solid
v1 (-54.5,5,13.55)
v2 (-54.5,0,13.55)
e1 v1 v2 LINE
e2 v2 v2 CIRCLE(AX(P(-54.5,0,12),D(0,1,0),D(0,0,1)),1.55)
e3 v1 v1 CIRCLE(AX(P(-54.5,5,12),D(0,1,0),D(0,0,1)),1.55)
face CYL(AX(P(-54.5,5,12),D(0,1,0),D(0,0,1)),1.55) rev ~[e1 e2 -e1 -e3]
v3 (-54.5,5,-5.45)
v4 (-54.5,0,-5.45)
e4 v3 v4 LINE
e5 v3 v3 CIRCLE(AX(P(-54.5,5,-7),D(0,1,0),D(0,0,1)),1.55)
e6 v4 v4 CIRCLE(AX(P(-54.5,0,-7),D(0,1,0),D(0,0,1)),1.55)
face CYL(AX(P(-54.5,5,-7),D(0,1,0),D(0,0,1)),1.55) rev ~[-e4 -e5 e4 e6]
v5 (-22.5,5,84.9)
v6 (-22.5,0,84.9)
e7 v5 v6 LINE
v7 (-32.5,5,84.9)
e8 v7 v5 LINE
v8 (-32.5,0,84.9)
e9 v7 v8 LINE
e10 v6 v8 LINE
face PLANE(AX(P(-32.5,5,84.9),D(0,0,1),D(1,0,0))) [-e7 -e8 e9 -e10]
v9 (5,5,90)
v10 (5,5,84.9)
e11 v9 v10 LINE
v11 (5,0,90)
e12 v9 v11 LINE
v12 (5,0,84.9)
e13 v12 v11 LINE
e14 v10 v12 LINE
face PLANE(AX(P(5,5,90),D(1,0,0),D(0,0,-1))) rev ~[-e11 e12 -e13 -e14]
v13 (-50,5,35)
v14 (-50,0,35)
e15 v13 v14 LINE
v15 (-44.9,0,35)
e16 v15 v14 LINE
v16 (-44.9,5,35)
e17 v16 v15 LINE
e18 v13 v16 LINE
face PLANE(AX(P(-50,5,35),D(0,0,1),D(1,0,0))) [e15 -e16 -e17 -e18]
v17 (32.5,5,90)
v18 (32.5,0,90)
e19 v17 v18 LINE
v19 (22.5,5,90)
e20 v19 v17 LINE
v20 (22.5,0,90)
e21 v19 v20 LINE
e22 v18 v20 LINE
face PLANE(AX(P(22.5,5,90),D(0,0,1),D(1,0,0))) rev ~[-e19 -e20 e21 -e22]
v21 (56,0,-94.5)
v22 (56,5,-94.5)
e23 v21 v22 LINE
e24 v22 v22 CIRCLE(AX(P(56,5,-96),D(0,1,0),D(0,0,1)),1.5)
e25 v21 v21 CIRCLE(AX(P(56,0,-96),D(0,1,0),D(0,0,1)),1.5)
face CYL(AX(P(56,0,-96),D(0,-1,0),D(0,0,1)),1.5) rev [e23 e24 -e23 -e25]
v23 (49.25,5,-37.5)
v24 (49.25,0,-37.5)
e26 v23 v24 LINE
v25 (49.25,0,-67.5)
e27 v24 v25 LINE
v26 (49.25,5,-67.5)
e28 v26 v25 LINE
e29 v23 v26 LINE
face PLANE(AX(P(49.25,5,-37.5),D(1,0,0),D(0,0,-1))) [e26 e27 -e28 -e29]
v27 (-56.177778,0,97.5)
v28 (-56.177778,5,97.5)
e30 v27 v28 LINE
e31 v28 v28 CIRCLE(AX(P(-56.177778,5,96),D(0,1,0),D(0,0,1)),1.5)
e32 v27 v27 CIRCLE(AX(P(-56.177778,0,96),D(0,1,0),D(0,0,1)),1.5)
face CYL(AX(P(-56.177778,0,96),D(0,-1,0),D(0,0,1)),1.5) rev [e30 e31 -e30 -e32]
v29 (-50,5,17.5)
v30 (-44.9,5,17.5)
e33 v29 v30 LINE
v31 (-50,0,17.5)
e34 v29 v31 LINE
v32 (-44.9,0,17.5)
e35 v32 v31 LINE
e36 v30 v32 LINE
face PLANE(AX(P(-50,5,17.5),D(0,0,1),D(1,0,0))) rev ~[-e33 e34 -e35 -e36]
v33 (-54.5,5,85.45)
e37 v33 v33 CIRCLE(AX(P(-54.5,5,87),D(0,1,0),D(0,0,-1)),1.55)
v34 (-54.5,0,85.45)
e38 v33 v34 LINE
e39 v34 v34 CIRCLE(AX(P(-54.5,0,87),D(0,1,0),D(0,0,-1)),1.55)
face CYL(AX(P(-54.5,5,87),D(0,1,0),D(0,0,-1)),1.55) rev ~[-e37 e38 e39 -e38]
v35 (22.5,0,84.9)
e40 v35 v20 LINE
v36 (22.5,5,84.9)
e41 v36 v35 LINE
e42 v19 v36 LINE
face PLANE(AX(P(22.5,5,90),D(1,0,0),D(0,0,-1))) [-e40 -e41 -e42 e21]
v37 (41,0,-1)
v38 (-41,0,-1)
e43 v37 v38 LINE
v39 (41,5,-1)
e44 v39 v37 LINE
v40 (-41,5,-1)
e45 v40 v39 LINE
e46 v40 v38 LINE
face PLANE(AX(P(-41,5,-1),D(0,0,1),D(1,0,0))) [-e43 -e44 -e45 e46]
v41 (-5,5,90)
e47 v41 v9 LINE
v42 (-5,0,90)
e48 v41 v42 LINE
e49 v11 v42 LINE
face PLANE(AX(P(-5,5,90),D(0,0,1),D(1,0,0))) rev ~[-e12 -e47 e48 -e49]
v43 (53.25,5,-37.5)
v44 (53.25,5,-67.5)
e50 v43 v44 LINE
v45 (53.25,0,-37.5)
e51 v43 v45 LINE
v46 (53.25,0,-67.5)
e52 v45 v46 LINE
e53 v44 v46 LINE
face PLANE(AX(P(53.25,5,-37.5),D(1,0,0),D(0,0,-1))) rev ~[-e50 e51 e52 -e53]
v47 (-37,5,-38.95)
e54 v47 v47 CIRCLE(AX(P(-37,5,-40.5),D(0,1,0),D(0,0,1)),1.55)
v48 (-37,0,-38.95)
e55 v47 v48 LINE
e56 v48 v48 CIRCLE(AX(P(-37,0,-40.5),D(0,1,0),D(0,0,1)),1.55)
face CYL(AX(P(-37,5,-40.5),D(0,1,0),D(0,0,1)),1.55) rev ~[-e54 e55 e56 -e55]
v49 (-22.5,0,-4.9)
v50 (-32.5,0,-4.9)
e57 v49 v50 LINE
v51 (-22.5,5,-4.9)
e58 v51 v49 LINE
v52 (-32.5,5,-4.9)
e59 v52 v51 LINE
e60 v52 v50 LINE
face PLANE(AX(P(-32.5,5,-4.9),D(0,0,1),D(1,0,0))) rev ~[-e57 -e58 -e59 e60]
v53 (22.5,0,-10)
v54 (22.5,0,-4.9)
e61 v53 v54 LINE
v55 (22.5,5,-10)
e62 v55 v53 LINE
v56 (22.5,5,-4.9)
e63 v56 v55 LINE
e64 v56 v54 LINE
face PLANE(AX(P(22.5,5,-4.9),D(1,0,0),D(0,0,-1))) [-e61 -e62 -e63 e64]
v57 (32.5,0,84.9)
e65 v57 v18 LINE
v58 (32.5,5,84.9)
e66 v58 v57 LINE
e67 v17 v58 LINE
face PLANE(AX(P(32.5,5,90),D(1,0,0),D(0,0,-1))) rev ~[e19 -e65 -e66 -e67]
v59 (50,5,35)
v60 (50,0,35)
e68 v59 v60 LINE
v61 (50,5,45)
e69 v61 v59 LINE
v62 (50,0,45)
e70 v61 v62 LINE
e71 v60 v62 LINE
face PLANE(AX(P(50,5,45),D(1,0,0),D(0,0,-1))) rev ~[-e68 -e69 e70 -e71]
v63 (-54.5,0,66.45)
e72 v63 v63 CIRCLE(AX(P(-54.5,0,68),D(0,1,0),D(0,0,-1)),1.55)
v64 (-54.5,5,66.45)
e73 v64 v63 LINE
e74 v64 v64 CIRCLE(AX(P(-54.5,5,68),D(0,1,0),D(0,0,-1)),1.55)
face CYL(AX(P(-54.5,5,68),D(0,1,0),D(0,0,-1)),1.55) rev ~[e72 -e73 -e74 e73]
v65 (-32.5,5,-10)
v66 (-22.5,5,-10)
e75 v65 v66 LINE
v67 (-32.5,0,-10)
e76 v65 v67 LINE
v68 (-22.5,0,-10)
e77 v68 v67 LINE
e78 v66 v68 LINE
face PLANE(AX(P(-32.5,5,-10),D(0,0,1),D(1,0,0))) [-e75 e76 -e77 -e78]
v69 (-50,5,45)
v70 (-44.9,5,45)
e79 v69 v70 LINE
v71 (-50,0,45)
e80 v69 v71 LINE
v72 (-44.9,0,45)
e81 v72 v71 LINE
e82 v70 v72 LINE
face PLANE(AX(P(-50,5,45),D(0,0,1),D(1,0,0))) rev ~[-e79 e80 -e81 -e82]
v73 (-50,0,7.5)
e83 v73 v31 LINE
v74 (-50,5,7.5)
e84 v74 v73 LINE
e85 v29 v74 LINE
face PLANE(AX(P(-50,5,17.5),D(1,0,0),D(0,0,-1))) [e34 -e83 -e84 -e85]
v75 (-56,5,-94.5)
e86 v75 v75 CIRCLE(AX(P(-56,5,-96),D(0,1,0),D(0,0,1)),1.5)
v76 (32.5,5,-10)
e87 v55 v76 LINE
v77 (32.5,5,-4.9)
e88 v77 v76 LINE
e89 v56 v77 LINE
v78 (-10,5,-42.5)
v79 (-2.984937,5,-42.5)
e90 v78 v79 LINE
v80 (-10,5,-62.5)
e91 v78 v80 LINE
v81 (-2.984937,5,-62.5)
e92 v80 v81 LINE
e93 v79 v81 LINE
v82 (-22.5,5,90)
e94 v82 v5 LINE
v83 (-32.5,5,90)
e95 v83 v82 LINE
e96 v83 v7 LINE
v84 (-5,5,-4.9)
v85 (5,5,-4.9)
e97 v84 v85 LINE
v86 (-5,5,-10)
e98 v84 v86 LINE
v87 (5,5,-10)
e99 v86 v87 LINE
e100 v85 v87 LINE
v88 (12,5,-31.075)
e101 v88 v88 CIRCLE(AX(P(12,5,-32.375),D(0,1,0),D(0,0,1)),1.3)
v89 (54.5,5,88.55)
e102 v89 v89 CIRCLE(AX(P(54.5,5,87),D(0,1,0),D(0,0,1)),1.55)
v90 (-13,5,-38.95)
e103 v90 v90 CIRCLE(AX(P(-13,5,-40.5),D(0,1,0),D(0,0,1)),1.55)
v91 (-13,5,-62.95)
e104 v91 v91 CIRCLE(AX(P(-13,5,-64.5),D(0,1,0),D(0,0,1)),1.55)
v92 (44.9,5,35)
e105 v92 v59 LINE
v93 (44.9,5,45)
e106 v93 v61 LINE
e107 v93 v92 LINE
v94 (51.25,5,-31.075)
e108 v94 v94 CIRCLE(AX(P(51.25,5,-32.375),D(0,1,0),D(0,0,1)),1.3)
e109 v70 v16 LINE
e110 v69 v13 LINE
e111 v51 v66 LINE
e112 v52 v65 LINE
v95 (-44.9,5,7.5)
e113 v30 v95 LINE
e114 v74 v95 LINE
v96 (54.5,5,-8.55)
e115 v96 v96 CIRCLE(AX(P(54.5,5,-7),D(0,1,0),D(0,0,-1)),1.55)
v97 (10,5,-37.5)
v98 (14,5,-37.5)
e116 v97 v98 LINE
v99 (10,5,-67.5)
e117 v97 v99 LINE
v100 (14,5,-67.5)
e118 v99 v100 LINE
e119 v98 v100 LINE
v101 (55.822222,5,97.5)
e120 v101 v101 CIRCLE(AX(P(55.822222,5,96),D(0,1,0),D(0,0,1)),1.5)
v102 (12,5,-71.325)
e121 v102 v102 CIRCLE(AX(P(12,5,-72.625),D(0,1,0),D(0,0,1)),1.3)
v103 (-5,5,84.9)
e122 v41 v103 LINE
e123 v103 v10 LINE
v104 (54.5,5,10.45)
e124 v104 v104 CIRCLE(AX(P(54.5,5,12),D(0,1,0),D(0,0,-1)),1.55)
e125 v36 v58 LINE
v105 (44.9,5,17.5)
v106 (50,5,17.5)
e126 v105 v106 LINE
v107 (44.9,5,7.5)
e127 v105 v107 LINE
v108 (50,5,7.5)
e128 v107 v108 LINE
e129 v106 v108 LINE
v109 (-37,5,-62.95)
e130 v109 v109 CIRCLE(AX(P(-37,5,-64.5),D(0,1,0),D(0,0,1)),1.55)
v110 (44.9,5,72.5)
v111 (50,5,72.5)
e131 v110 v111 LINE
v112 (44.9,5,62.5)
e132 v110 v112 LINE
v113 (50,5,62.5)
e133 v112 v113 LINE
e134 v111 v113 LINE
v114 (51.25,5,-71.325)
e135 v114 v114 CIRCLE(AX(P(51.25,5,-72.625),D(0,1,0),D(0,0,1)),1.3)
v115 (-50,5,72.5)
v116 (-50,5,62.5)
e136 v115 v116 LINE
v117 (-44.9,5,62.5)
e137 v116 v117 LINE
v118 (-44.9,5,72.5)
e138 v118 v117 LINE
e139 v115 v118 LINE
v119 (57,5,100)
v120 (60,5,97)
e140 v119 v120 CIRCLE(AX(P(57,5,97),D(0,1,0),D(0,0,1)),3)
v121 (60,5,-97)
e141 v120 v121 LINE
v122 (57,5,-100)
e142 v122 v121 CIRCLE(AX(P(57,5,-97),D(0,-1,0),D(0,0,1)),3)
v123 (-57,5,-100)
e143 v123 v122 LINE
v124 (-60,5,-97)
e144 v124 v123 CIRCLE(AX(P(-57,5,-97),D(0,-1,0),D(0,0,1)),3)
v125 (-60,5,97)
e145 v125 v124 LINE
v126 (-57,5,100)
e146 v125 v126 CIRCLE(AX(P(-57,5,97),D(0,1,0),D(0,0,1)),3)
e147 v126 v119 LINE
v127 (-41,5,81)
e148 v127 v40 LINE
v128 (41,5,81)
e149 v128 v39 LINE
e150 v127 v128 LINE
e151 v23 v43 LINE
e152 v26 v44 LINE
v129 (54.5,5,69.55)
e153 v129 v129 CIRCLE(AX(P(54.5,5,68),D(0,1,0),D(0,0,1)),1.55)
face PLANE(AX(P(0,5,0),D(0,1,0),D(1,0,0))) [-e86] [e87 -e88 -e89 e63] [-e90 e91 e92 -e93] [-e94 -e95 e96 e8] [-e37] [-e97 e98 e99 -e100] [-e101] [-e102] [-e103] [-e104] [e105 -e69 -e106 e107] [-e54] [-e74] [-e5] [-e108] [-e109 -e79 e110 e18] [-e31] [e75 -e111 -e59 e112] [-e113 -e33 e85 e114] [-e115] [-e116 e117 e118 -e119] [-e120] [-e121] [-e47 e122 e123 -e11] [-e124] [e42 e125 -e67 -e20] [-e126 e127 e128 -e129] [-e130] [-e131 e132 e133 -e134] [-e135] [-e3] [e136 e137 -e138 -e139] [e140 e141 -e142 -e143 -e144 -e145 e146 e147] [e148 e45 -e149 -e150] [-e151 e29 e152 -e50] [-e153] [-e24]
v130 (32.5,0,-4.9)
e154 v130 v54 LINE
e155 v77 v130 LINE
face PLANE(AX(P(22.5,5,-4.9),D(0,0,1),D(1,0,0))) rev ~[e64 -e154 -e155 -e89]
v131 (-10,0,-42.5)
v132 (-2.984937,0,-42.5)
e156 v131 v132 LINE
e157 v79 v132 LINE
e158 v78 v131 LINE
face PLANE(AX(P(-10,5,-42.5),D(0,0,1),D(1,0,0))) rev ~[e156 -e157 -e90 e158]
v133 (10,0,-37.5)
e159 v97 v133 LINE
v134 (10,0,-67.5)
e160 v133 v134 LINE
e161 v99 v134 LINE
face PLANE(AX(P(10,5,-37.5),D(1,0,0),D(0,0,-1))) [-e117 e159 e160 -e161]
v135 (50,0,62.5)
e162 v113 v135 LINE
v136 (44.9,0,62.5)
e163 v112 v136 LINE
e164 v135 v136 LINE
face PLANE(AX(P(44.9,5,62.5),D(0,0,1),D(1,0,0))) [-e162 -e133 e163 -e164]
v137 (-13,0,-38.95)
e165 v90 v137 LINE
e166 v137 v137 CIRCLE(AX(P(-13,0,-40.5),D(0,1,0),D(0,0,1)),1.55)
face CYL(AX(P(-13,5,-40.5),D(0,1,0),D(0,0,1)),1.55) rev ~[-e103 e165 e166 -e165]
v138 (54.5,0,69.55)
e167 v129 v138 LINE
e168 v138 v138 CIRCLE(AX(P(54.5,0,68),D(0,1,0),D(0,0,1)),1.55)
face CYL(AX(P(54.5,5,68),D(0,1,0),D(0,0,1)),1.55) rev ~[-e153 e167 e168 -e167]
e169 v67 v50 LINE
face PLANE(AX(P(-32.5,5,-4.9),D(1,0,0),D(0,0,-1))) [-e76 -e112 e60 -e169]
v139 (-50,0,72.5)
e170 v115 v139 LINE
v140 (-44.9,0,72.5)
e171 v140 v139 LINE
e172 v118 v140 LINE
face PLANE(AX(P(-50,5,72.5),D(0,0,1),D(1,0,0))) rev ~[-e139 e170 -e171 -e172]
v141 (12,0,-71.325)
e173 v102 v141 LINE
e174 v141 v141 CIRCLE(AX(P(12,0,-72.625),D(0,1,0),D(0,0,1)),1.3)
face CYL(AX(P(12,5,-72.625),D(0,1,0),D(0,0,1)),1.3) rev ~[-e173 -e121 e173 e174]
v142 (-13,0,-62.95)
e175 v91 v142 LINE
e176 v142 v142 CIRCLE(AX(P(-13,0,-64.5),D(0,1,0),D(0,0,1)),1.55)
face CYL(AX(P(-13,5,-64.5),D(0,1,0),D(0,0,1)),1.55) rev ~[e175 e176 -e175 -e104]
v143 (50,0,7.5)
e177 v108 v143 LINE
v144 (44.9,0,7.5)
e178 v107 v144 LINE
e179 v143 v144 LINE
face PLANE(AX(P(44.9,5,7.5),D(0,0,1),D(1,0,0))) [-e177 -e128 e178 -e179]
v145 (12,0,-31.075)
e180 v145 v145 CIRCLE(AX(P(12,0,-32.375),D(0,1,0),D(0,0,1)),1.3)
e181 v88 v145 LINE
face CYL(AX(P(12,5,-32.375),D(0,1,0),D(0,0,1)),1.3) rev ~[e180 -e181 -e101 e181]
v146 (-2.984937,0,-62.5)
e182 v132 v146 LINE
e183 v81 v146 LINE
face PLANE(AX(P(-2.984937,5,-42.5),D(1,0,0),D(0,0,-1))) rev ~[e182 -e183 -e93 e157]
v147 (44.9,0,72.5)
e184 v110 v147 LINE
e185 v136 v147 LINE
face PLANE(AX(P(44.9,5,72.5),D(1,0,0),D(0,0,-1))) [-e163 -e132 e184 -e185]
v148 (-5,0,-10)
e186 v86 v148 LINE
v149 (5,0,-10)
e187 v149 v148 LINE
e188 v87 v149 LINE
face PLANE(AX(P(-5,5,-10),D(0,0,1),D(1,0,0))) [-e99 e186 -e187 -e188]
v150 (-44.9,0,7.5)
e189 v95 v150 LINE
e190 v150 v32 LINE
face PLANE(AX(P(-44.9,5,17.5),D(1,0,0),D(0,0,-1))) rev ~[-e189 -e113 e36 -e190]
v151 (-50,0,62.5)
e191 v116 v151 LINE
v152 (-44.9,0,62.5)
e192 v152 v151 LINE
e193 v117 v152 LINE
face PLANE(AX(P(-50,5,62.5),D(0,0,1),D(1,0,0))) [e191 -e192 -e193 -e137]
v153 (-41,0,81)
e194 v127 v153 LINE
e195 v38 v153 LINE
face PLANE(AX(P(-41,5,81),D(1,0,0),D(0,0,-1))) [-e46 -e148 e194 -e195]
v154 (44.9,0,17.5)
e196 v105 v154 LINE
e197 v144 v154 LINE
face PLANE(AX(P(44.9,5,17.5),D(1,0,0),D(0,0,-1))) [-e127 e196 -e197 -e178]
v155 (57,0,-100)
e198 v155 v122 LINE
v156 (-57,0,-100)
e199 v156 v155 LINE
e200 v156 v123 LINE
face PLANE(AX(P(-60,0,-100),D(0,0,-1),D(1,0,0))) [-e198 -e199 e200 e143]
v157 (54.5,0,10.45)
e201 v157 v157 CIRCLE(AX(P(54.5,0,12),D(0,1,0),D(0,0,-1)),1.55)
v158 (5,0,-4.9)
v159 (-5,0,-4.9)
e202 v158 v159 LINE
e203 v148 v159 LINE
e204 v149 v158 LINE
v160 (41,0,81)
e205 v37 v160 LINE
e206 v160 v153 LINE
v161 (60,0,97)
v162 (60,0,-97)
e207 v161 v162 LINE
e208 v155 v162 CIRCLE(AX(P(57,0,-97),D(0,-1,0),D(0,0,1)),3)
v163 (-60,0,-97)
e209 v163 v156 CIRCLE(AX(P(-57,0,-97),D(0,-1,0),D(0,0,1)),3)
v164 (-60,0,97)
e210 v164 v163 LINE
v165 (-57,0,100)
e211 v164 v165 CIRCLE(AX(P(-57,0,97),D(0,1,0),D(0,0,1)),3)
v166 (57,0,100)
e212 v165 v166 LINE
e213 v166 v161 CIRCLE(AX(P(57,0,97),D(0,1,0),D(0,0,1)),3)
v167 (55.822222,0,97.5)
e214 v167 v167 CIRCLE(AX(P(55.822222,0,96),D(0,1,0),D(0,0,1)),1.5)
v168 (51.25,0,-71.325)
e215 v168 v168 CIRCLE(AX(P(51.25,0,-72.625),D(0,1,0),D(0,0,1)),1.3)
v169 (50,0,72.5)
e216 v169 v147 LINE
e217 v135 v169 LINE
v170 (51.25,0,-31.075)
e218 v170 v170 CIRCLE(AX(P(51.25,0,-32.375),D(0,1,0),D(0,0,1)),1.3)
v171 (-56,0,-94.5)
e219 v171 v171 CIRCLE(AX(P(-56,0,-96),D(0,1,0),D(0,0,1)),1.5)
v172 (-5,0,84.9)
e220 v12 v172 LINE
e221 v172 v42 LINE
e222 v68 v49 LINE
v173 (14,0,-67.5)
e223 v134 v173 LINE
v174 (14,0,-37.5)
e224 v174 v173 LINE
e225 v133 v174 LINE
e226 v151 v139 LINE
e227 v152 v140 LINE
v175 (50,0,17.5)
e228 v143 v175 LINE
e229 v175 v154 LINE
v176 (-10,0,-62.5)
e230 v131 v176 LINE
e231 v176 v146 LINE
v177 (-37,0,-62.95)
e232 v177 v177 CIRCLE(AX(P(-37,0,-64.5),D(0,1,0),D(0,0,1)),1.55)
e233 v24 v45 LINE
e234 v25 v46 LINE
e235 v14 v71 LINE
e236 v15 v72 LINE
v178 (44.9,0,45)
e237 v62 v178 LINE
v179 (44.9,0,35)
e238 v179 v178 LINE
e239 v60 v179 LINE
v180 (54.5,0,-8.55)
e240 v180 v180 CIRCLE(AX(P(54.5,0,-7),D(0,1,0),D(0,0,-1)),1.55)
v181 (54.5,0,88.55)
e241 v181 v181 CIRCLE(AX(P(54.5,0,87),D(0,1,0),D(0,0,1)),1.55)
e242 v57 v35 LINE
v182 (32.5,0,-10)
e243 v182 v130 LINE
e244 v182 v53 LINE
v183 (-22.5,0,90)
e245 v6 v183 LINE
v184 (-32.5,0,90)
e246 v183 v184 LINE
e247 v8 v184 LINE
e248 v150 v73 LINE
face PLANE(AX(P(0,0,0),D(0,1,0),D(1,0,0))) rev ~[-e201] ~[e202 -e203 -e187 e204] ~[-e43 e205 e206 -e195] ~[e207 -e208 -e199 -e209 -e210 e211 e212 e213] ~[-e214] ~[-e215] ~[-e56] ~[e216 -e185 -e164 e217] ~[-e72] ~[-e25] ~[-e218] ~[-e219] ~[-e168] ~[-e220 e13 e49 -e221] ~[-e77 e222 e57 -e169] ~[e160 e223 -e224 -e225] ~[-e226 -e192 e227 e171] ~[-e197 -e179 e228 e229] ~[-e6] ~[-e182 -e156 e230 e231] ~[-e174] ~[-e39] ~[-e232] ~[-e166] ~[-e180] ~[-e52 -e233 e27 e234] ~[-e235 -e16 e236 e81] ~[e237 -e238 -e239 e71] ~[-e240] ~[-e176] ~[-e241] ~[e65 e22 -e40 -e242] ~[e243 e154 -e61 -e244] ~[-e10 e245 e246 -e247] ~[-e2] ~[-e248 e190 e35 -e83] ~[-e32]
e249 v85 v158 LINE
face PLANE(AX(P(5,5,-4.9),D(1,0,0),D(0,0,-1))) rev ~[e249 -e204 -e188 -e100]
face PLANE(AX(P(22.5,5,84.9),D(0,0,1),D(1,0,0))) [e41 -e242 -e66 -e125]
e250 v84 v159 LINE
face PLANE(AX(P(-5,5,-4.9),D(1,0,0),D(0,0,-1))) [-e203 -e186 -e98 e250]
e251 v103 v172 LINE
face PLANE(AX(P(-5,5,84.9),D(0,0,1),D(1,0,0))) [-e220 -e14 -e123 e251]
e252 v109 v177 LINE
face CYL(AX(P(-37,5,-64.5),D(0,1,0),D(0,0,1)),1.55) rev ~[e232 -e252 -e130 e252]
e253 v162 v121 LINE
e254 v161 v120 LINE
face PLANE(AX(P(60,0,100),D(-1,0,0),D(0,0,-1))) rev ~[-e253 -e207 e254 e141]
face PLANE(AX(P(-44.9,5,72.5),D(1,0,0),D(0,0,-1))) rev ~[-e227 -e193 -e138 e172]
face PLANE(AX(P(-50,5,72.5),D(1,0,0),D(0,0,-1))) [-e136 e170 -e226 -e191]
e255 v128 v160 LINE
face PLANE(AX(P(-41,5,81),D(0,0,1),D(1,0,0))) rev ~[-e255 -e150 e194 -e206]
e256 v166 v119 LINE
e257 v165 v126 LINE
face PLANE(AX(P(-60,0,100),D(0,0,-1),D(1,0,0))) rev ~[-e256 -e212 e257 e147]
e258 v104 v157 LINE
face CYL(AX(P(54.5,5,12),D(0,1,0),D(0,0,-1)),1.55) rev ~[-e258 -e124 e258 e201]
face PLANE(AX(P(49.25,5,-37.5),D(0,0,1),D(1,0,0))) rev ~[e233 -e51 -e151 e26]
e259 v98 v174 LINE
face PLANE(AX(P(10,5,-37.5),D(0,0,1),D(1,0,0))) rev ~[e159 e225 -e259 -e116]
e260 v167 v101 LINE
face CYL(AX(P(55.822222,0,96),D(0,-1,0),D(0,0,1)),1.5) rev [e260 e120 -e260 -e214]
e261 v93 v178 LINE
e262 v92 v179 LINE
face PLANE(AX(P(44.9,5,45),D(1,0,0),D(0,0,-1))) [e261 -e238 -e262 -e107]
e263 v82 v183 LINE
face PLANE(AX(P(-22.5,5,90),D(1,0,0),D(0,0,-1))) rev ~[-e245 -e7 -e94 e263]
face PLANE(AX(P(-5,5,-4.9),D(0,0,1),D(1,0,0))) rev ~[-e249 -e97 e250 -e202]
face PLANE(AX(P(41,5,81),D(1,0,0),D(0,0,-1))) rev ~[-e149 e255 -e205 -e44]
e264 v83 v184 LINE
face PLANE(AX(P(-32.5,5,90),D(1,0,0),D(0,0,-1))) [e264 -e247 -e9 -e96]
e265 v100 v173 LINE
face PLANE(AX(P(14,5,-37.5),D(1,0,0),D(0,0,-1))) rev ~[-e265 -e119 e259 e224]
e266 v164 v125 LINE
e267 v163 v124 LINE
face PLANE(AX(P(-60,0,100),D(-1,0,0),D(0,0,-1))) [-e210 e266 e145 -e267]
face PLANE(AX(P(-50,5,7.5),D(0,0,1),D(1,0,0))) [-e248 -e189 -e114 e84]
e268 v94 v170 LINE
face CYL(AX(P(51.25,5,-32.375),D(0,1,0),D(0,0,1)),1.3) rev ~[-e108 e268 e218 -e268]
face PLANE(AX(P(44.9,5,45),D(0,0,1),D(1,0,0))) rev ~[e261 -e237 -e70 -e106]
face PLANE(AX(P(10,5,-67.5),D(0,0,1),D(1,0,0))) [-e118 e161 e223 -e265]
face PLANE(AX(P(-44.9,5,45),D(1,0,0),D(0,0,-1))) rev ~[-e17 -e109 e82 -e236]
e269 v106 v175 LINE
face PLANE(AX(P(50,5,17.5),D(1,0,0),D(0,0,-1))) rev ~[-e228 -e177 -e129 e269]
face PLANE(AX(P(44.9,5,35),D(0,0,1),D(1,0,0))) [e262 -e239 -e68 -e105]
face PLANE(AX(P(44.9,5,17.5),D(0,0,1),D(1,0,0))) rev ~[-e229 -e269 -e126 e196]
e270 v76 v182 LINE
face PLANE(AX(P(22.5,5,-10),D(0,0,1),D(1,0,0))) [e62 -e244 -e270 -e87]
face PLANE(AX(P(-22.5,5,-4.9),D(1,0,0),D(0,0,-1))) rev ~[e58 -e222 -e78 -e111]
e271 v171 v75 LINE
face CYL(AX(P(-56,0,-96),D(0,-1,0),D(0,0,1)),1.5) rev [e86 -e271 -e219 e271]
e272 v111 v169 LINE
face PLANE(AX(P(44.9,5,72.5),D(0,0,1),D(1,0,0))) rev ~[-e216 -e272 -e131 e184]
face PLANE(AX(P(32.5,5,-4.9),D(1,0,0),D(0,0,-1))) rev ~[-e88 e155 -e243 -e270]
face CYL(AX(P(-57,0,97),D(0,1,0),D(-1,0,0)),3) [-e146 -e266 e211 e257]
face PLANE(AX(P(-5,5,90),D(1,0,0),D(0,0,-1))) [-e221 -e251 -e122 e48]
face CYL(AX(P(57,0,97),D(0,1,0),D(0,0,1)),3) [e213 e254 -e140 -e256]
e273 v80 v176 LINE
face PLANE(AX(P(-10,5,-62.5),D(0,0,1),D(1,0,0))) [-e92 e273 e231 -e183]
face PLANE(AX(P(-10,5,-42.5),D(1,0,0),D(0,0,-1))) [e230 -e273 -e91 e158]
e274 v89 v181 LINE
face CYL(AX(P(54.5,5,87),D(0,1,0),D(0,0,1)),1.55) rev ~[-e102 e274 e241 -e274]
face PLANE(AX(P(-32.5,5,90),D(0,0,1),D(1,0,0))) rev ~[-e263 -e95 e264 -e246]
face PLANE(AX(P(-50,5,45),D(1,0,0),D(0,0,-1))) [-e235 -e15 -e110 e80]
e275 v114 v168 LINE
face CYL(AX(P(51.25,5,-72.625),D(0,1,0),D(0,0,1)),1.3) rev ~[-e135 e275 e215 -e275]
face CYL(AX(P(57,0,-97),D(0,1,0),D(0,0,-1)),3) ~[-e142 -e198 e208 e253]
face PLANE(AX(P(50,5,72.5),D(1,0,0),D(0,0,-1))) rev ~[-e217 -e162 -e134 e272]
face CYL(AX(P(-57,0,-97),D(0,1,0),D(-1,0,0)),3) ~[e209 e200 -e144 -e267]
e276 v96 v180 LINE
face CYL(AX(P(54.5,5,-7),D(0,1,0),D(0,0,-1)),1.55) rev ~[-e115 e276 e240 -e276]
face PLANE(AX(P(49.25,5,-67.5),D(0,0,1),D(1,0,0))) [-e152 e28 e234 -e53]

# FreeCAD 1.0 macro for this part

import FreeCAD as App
import Part
import Sketcher

V = App.Vector
Q = App.Units.Quantity


def edges_at(feature, points):
    """Names of the edges that pass closest to the given points."""
    edges = feature.Shape.Edges
    near = lambda p: min(range(len(edges)), key=lambda i: edges[i].distToShape(Part.Vertex(*p))[0])
    return sorted({f"Edge{near(p) + 1}" for p in points})

doc = App.newDocument("Part")
params = doc.addObject("Spreadsheet::Sheet", "Params")
for row, (alias, value) in enumerate([
    ("sketch1_diameter", "3 mm"),
    ("sketch1_width", "120 mm"),
    ("sketch1_height", "200 mm"),
    ("pad1_length", "5 mm"),
    ("sketch2_height", "10 mm"),
    ("sketch2_width", "5.1 mm"),
    ("sketch3_height", "10 mm"),
    ("sketch3_width", "5.1 mm"),
    ("sketch4_height", "10 mm"),
    ("sketch4_width", "5.1 mm"),
    ("sketch5_width", "10 mm"),
    ("sketch5_height", "5.1 mm"),
    ("sketch6_width", "10 mm"),
    ("sketch6_height", "5.1 mm"),
    ("sketch7_width", "10 mm"),
    ("sketch7_height", "5.1 mm"),
    ("sketch8_height", "10 mm"),
    ("sketch8_width", "5.1 mm"),
    ("sketch9_height", "10 mm"),
    ("sketch9_width", "5.1 mm"),
    ("sketch10_height", "10 mm"),
    ("sketch10_width", "5.1 mm"),
    ("sketch11_width", "10 mm"),
    ("sketch11_height", "5.1 mm"),
    ("sketch12_width", "10 mm"),
    ("sketch12_height", "5.1 mm"),
    ("sketch13_width", "10 mm"),
    ("sketch13_height", "5.1 mm"),
    ("sketch14_width", "82 mm"),
    ("sketch15_diameter", "3.1 mm"),
    ("sketch15_height", "20 mm"),
    ("sketch16_diameter", "2.6 mm"),
    ("sketch16_width", "4 mm"),
    ("sketch16_height", "30 mm"),
    ("pocket15_length", "10 mm"),
    ("sketch17_diameter", "3.1 mm"),
    ("fillet_radius", "3 mm"),
], start=1):
    params.set(f"A{row}", alias)
    params.set(f"B{row}", "=" + value)
    params.setAlias(f"B{row}", alias)

body = doc.addObject("PartDesign::Body", "Body")

# Sketch on XZ plane
sketch1 = body.newObject("Sketcher::SketchObject", "Sketch")
sketch1.AttachmentSupport = (doc.getObject("XZ_Plane"), [""])
sketch1.MapMode = "FlatFace"
sketch1.addGeometry([
    Part.LineSegment(V(-60, -100, 0), V(-60, 100, 0)),  # 0
    Part.LineSegment(V(-60, 100, 0), V(60, 100, 0)),  # 1
    Part.LineSegment(V(60, 100, 0), V(60, -100, 0)),  # 2
    Part.LineSegment(V(60, -100, 0), V(-60, -100, 0)),  # 3
    Part.Circle(V(-56.2, 96, 0), V(0, 0, 1), 1.5),  # 4
    Part.Circle(V(55.8, 96, 0), V(0, 0, 1), 1.5),  # 5
    Part.Circle(V(-56, -96, 0), V(0, 0, 1), 1.5),  # 6
    Part.Circle(V(56, -96, 0), V(0, 0, 1), 1.5),  # 7
], False)
sketch1.addConstraint([
    Sketcher.Constraint("Coincident", 0, 2, 1, 1),
    Sketcher.Constraint("Coincident", 1, 2, 2, 1),
    Sketcher.Constraint("Coincident", 2, 2, 3, 1),
    Sketcher.Constraint("Coincident", 3, 2, 0, 1),
    Sketcher.Constraint("Vertical", 0),
    Sketcher.Constraint("Horizontal", 1),
    Sketcher.Constraint("Vertical", 2),
    Sketcher.Constraint("Horizontal", 3),
    Sketcher.Constraint("Equal", 4, 5),
    Sketcher.Constraint("Equal", 5, 6),
    Sketcher.Constraint("Equal", 6, 7),
    Sketcher.Constraint("Symmetric", 0, 2, 2, 2, -1, 1),
    Sketcher.Constraint("Symmetric", 6, 3, 7, 3, -2),
    Sketcher.Constraint("Horizontal", 4, 3, 5, 3),
    Sketcher.Constraint("Diameter", 4, Q("3 mm")),
    Sketcher.Constraint("DistanceX", 1, 1, 1, 2, Q("120 mm")),
    Sketcher.Constraint("DistanceY", 0, 1, 0, 2, Q("200 mm")),
    Sketcher.Constraint("DistanceY", -1, 1, 4, 3, Q("96 mm")),
    Sketcher.Constraint("DistanceX", 6, 3, -1, 1, Q("56 mm")),
    Sketcher.Constraint("DistanceY", 6, 3, -1, 1, Q("96 mm")),
    Sketcher.Constraint("DistanceX", 4, 3, 5, 3, Q("112 mm")),
    Sketcher.Constraint("DistanceX", 4, 3, -1, 1, Q("56.177778 mm")),
])
sketch1.setExpression("Constraints[14]", "Params.sketch1_diameter")
sketch1.setExpression("Constraints[15]", "Params.sketch1_width")
sketch1.setExpression("Constraints[16]", "Params.sketch1_height")
pad1 = body.newObject("PartDesign::Pad", "Pad")
pad1.Profile = sketch1
pad1.setExpression("Length", "Params.pad1_length")
pad1.Reversed = True

# Sketch on XZ plane
sketch2 = body.newObject("Sketcher::SketchObject", "Sketch001")
sketch2.AttachmentSupport = (doc.getObject("XZ_Plane"), [""])
sketch2.MapMode = "FlatFace"
sketch2.AttachmentOffset = App.Placement(V(0, 0, -5), App.Rotation())
sketch2.addGeometry([
    Part.LineSegment(V(-50, 8, 0), V(-50, 18, 0)),
    Part.LineSegment(V(-50, 18, 0), V(-45, 18, 0)),
    Part.LineSegment(V(-45, 18, 0), V(-45, 8, 0)),
    Part.LineSegment(V(-45, 8, 0), V(-50, 8, 0)),
], False)
sketch2.addConstraint([
    Sketcher.Constraint("Coincident", 0, 2, 1, 1),
    Sketcher.Constraint("Coincident", 1, 2, 2, 1),
    Sketcher.Constraint("Coincident", 2, 2, 3, 1),
    Sketcher.Constraint("Coincident", 3, 2, 0, 1),
    Sketcher.Constraint("Vertical", 0),
    Sketcher.Constraint("Horizontal", 1),
    Sketcher.Constraint("Vertical", 2),
    Sketcher.Constraint("Horizontal", 3),
    Sketcher.Constraint("DistanceY", 0, 1, 0, 2, Q("10 mm")),
    Sketcher.Constraint("DistanceX", 1, 1, 1, 2, Q("5.1 mm")),
    Sketcher.Constraint("DistanceX", 0, 2, -1, 1, Q("50 mm")),
    Sketcher.Constraint("DistanceY", -1, 1, 0, 2, Q("17.5 mm")),
])
sketch2.setExpression("Constraints[8]", "Params.sketch2_height")
sketch2.setExpression("Constraints[9]", "Params.sketch2_width")
pocket1 = body.newObject("PartDesign::Pocket", "Pocket")
pocket1.Profile = sketch2
pocket1.Type = "UpToFirst"
pocket1.Reversed = True

# Sketch on XZ plane
sketch3 = body.newObject("Sketcher::SketchObject", "Sketch002")
sketch3.AttachmentSupport = (doc.getObject("XZ_Plane"), [""])
sketch3.MapMode = "FlatFace"
sketch3.AttachmentOffset = App.Placement(V(0, 0, -5), App.Rotation())
sketch3.addGeometry([
    Part.LineSegment(V(-50, 62, 0), V(-50, 72, 0)),
    Part.LineSegment(V(-50, 72, 0), V(-45, 72, 0)),
    Part.LineSegment(V(-45, 72, 0), V(-45, 62, 0)),
    Part.LineSegment(V(-45, 62, 0), V(-50, 62, 0)),
], False)
sketch3.addConstraint([
    Sketcher.Constraint("Coincident", 0, 2, 1, 1),
    Sketcher.Constraint("Coincident", 1, 2, 2, 1),
    Sketcher.Constraint("Coincident", 2, 2, 3, 1),
    Sketcher.Constraint("Coincident", 3, 2, 0, 1),
    Sketcher.Constraint("Vertical", 0),
    Sketcher.Constraint("Horizontal", 1),
    Sketcher.Constraint("Vertical", 2),
    Sketcher.Constraint("Horizontal", 3),
    Sketcher.Constraint("DistanceY", 0, 1, 0, 2, Q("10 mm")),
    Sketcher.Constraint("DistanceX", 1, 1, 1, 2, Q("5.1 mm")),
    Sketcher.Constraint("DistanceX", 0, 2, -1, 1, Q("50 mm")),
    Sketcher.Constraint("DistanceY", -1, 1, 0, 2, Q("72.5 mm")),
])
sketch3.setExpression("Constraints[8]", "Params.sketch3_height")
sketch3.setExpression("Constraints[9]", "Params.sketch3_width")
pocket2 = body.newObject("PartDesign::Pocket", "Pocket001")
pocket2.Profile = sketch3
pocket2.Type = "UpToFirst"
pocket2.Reversed = True

# Sketch on XZ plane
sketch4 = body.newObject("Sketcher::SketchObject", "Sketch003")
sketch4.AttachmentSupport = (doc.getObject("XZ_Plane"), [""])
sketch4.MapMode = "FlatFace"
sketch4.AttachmentOffset = App.Placement(V(0, 0, -5), App.Rotation())
sketch4.addGeometry([
    Part.LineSegment(V(-50, 35, 0), V(-50, 45, 0)),
    Part.LineSegment(V(-50, 45, 0), V(-45, 45, 0)),
    Part.LineSegment(V(-45, 45, 0), V(-45, 35, 0)),
    Part.LineSegment(V(-45, 35, 0), V(-50, 35, 0)),
], False)
sketch4.addConstraint([
    Sketcher.Constraint("Coincident", 0, 2, 1, 1),
    Sketcher.Constraint("Coincident", 1, 2, 2, 1),
    Sketcher.Constraint("Coincident", 2, 2, 3, 1),
    Sketcher.Constraint("Coincident", 3, 2, 0, 1),
    Sketcher.Constraint("Vertical", 0),
    Sketcher.Constraint("Horizontal", 1),
    Sketcher.Constraint("Vertical", 2),
    Sketcher.Constraint("Horizontal", 3),
    Sketcher.Constraint("DistanceY", 0, 1, 0, 2, Q("10 mm")),
    Sketcher.Constraint("DistanceX", 1, 1, 1, 2, Q("5.1 mm")),
    Sketcher.Constraint("DistanceX", 0, 2, -1, 1, Q("50 mm")),
    Sketcher.Constraint("DistanceY", -1, 1, 0, 2, Q("45 mm")),
])
sketch4.setExpression("Constraints[8]", "Params.sketch4_height")
sketch4.setExpression("Constraints[9]", "Params.sketch4_width")
pocket3 = body.newObject("PartDesign::Pocket", "Pocket002")
pocket3.Profile = sketch4
pocket3.Type = "UpToFirst"
pocket3.Reversed = True

# Sketch on XZ plane
sketch5 = body.newObject("Sketcher::SketchObject", "Sketch004")
sketch5.AttachmentSupport = (doc.getObject("XZ_Plane"), [""])
sketch5.MapMode = "FlatFace"
sketch5.AttachmentOffset = App.Placement(V(0, 0, -5), App.Rotation())
sketch5.addGeometry([
    Part.LineSegment(V(-32, -10, 0), V(-32, -5, 0)),
    Part.LineSegment(V(-32, -5, 0), V(-22, -5, 0)),
    Part.LineSegment(V(-22, -5, 0), V(-22, -10, 0)),
    Part.LineSegment(V(-22, -10, 0), V(-32, -10, 0)),
], False)
sketch5.addConstraint([
    Sketcher.Constraint("Coincident", 0, 2, 1, 1),
    Sketcher.Constraint("Coincident", 1, 2, 2, 1),
    Sketcher.Constraint("Coincident", 2, 2, 3, 1),
    Sketcher.Constraint("Coincident", 3, 2, 0, 1),
    Sketcher.Constraint("Vertical", 0),
    Sketcher.Constraint("Horizontal", 1),
    Sketcher.Constraint("Vertical", 2),
    Sketcher.Constraint("Horizontal", 3),
    Sketcher.Constraint("DistanceX", 1, 1, 1, 2, Q("10 mm")),
    Sketcher.Constraint("DistanceY", 0, 1, 0, 2, Q("5.1 mm")),
    Sketcher.Constraint("DistanceY", 2, 2, -1, 1, Q("10 mm")),
    Sketcher.Constraint("DistanceX", 0, 2, -1, 1, Q("32.5 mm")),
])
sketch5.setExpression("Constraints[8]", "Params.sketch5_width")
sketch5.setExpression("Constraints[9]", "Params.sketch5_height")
pocket4 = body.newObject("PartDesign::Pocket", "Pocket003")
pocket4.Profile = sketch5
pocket4.Type = "UpToFirst"
pocket4.Reversed = True

# Sketch on XZ plane
sketch6 = body.newObject("Sketcher::SketchObject", "Sketch005")
sketch6.AttachmentSupport = (doc.getObject("XZ_Plane"), [""])
sketch6.MapMode = "FlatFace"
sketch6.AttachmentOffset = App.Placement(V(0, 0, -5), App.Rotation())
sketch6.addGeometry([
    Part.LineSegment(V(-5, -10, 0), V(-5, -5, 0)),
    Part.LineSegment(V(-5, -5, 0), V(5, -5, 0)),
    Part.LineSegment(V(5, -5, 0), V(5, -10, 0)),
    Part.LineSegment(V(5, -10, 0), V(-5, -10, 0)),
], False)
sketch6.addConstraint([
    Sketcher.Constraint("Coincident", 0, 2, 1, 1),
    Sketcher.Constraint("Coincident", 1, 2, 2, 1),
    Sketcher.Constraint("Coincident", 2, 2, 3, 1),
    Sketcher.Constraint("Coincident", 3, 2, 0, 1),
    Sketcher.Constraint("Vertical", 0),
    Sketcher.Constraint("Horizontal", 1),
    Sketcher.Constraint("Vertical", 2),
    Sketcher.Constraint("Horizontal", 3),
    Sketcher.Constraint("DistanceX", 1, 1, 1, 2, Q("10 mm")),
    Sketcher.Constraint("DistanceY", 0, 1, 0, 2, Q("5.1 mm")),
    Sketcher.Constraint("DistanceX", 0, 2, -1, 1, Q("5 mm")),
    Sketcher.Constraint("DistanceY", 2, 2, -1, 1, Q("10 mm")),
])
sketch6.setExpression("Constraints[8]", "Params.sketch6_width")
sketch6.setExpression("Constraints[9]", "Params.sketch6_height")
pocket5 = body.newObject("PartDesign::Pocket", "Pocket004")
pocket5.Profile = sketch6
pocket5.Type = "UpToFirst"
pocket5.Reversed = True

# Sketch on XZ plane
sketch7 = body.newObject("Sketcher::SketchObject", "Sketch006")
sketch7.AttachmentSupport = (doc.getObject("XZ_Plane"), [""])
sketch7.MapMode = "FlatFace"
sketch7.AttachmentOffset = App.Placement(V(0, 0, -5), App.Rotation())
sketch7.addGeometry([
    Part.LineSegment(V(22, -10, 0), V(22, -5, 0)),
    Part.LineSegment(V(22, -5, 0), V(32, -5, 0)),
    Part.LineSegment(V(32, -5, 0), V(32, -10, 0)),
    Part.LineSegment(V(32, -10, 0), V(22, -10, 0)),
], False)
sketch7.addConstraint([
    Sketcher.Constraint("Coincident", 0, 2, 1, 1),
    Sketcher.Constraint("Coincident", 1, 2, 2, 1),
    Sketcher.Constraint("Coincident", 2, 2, 3, 1),
    Sketcher.Constraint("Coincident", 3, 2, 0, 1),
    Sketcher.Constraint("Vertical", 0),
    Sketcher.Constraint("Horizontal", 1),
    Sketcher.Constraint("Vertical", 2),
    Sketcher.Constraint("Horizontal", 3),
    Sketcher.Constraint("DistanceX", 1, 1, 1, 2, Q("10 mm")),
    Sketcher.Constraint("DistanceY", 0, 1, 0, 2, Q("5.1 mm")),
    Sketcher.Constraint("DistanceY", 2, 2, -1, 1, Q("10 mm")),
    Sketcher.Constraint("DistanceX", -1, 1, 0, 2, Q("22.5 mm")),
])
sketch7.setExpression("Constraints[8]", "Params.sketch7_width")
sketch7.setExpression("Constraints[9]", "Params.sketch7_height")
pocket6 = body.newObject("PartDesign::Pocket", "Pocket005")
pocket6.Profile = sketch7
pocket6.Type = "UpToFirst"
pocket6.Reversed = True

# Sketch on XZ plane
sketch8 = body.newObject("Sketcher::SketchObject", "Sketch007")
sketch8.AttachmentSupport = (doc.getObject("XZ_Plane"), [""])
sketch8.MapMode = "FlatFace"
sketch8.AttachmentOffset = App.Placement(V(0, 0, -5), App.Rotation())
sketch8.addGeometry([
    Part.LineSegment(V(45, 8, 0), V(45, 18, 0)),
    Part.LineSegment(V(45, 18, 0), V(50, 18, 0)),
    Part.LineSegment(V(50, 18, 0), V(50, 8, 0)),
    Part.LineSegment(V(50, 8, 0), V(45, 8, 0)),
], False)
sketch8.addConstraint([
    Sketcher.Constraint("Coincident", 0, 2, 1, 1),
    Sketcher.Constraint("Coincident", 1, 2, 2, 1),
    Sketcher.Constraint("Coincident", 2, 2, 3, 1),
    Sketcher.Constraint("Coincident", 3, 2, 0, 1),
    Sketcher.Constraint("Vertical", 0),
    Sketcher.Constraint("Horizontal", 1),
    Sketcher.Constraint("Vertical", 2),
    Sketcher.Constraint("Horizontal", 3),
    Sketcher.Constraint("DistanceY", 0, 1, 0, 2, Q("10 mm")),
    Sketcher.Constraint("DistanceX", 1, 1, 1, 2, Q("5.1 mm")),
    Sketcher.Constraint("DistanceX", -1, 1, 1, 2, Q("50 mm")),
    Sketcher.Constraint("DistanceY", -1, 1, 0, 2, Q("17.5 mm")),
])
sketch8.setExpression("Constraints[8]", "Params.sketch8_height")
sketch8.setExpression("Constraints[9]", "Params.sketch8_width")
pocket7 = body.newObject("PartDesign::Pocket", "Pocket006")
pocket7.Profile = sketch8
pocket7.Type = "UpToFirst"
pocket7.Reversed = True

# Sketch on XZ plane
sketch9 = body.newObject("Sketcher::SketchObject", "Sketch008")
sketch9.AttachmentSupport = (doc.getObject("XZ_Plane"), [""])
sketch9.MapMode = "FlatFace"
sketch9.AttachmentOffset = App.Placement(V(0, 0, -5), App.Rotation())
sketch9.addGeometry([
    Part.LineSegment(V(45, 35, 0), V(45, 45, 0)),
    Part.LineSegment(V(45, 45, 0), V(50, 45, 0)),
    Part.LineSegment(V(50, 45, 0), V(50, 35, 0)),
    Part.LineSegment(V(50, 35, 0), V(45, 35, 0)),
], False)
sketch9.addConstraint([
    Sketcher.Constraint("Coincident", 0, 2, 1, 1),
    Sketcher.Constraint("Coincident", 1, 2, 2, 1),
    Sketcher.Constraint("Coincident", 2, 2, 3, 1),
    Sketcher.Constraint("Coincident", 3, 2, 0, 1),
    Sketcher.Constraint("Vertical", 0),
    Sketcher.Constraint("Horizontal", 1),
    Sketcher.Constraint("Vertical", 2),
    Sketcher.Constraint("Horizontal", 3),
    Sketcher.Constraint("DistanceY", 0, 1, 0, 2, Q("10 mm")),
    Sketcher.Constraint("DistanceX", 1, 1, 1, 2, Q("5.1 mm")),
    Sketcher.Constraint("DistanceY", -1, 1, 0, 2, Q("45 mm")),
    Sketcher.Constraint("DistanceX", -1, 1, 1, 2, Q("50 mm")),
])
sketch9.setExpression("Constraints[8]", "Params.sketch9_height")
sketch9.setExpression("Constraints[9]", "Params.sketch9_width")
pocket8 = body.newObject("PartDesign::Pocket", "Pocket007")
pocket8.Profile = sketch9
pocket8.Type = "UpToFirst"
pocket8.Reversed = True

# Sketch on XZ plane
sketch10 = body.newObject("Sketcher::SketchObject", "Sketch009")
sketch10.AttachmentSupport = (doc.getObject("XZ_Plane"), [""])
sketch10.MapMode = "FlatFace"
sketch10.AttachmentOffset = App.Placement(V(0, 0, -5), App.Rotation())
sketch10.addGeometry([
    Part.LineSegment(V(45, 62, 0), V(45, 72, 0)),
    Part.LineSegment(V(45, 72, 0), V(50, 72, 0)),
    Part.LineSegment(V(50, 72, 0), V(50, 62, 0)),
    Part.LineSegment(V(50, 62, 0), V(45, 62, 0)),
], False)
sketch10.addConstraint([
    Sketcher.Constraint("Coincident", 0, 2, 1, 1),
    Sketcher.Constraint("Coincident", 1, 2, 2, 1),
    Sketcher.Constraint("Coincident", 2, 2, 3, 1),
    Sketcher.Constraint("Coincident", 3, 2, 0, 1),
    Sketcher.Constraint("Vertical", 0),
    Sketcher.Constraint("Horizontal", 1),
    Sketcher.Constraint("Vertical", 2),
    Sketcher.Constraint("Horizontal", 3),
    Sketcher.Constraint("DistanceY", 0, 1, 0, 2, Q("10 mm")),
    Sketcher.Constraint("DistanceX", 1, 1, 1, 2, Q("5.1 mm")),
    Sketcher.Constraint("DistanceX", -1, 1, 1, 2, Q("50 mm")),
    Sketcher.Constraint("DistanceY", -1, 1, 0, 2, Q("72.5 mm")),
])
sketch10.setExpression("Constraints[8]", "Params.sketch10_height")
sketch10.setExpression("Constraints[9]", "Params.sketch10_width")
pocket9 = body.newObject("PartDesign::Pocket", "Pocket008")
pocket9.Profile = sketch10
pocket9.Type = "UpToFirst"
pocket9.Reversed = True

# Sketch on XZ plane
sketch11 = body.newObject("Sketcher::SketchObject", "Sketch010")
sketch11.AttachmentSupport = (doc.getObject("XZ_Plane"), [""])
sketch11.MapMode = "FlatFace"
sketch11.AttachmentOffset = App.Placement(V(0, 0, -5), App.Rotation())
sketch11.addGeometry([
    Part.LineSegment(V(-5, 85, 0), V(-5, 90, 0)),
    Part.LineSegment(V(-5, 90, 0), V(5, 90, 0)),
    Part.LineSegment(V(5, 90, 0), V(5, 85, 0)),
    Part.LineSegment(V(5, 85, 0), V(-5, 85, 0)),
], False)
sketch11.addConstraint([
    Sketcher.Constraint("Coincident", 0, 2, 1, 1),
    Sketcher.Constraint("Coincident", 1, 2, 2, 1),
    Sketcher.Constraint("Coincident", 2, 2, 3, 1),
    Sketcher.Constraint("Coincident", 3, 2, 0, 1),
    Sketcher.Constraint("Vertical", 0),
    Sketcher.Constraint("Horizontal", 1),
    Sketcher.Constraint("Vertical", 2),
    Sketcher.Constraint("Horizontal", 3),
    Sketcher.Constraint("DistanceX", 1, 1, 1, 2, Q("10 mm")),
    Sketcher.Constraint("DistanceY", 0, 1, 0, 2, Q("5.1 mm")),
    Sketcher.Constraint("DistanceX", 0, 2, -1, 1, Q("5 mm")),
    Sketcher.Constraint("DistanceY", -1, 1, 0, 2, Q("90 mm")),
])
sketch11.setExpression("Constraints[8]", "Params.sketch11_width")
sketch11.setExpression("Constraints[9]", "Params.sketch11_height")
pocket10 = body.newObject("PartDesign::Pocket", "Pocket009")
pocket10.Profile = sketch11
pocket10.Type = "UpToFirst"
pocket10.Reversed = True

# Sketch on XZ plane
sketch12 = body.newObject("Sketcher::SketchObject", "Sketch011")
sketch12.AttachmentSupport = (doc.getObject("XZ_Plane"), [""])
sketch12.MapMode = "FlatFace"
sketch12.AttachmentOffset = App.Placement(V(0, 0, -5), App.Rotation())
sketch12.addGeometry([
    Part.LineSegment(V(-32, 85, 0), V(-32, 90, 0)),
    Part.LineSegment(V(-32, 90, 0), V(-22, 90, 0)),
    Part.LineSegment(V(-22, 90, 0), V(-22, 85, 0)),
    Part.LineSegment(V(-22, 85, 0), V(-32, 85, 0)),
], False)
sketch12.addConstraint([
    Sketcher.Constraint("Coincident", 0, 2, 1, 1),
    Sketcher.Constraint("Coincident", 1, 2, 2, 1),
    Sketcher.Constraint("Coincident", 2, 2, 3, 1),
    Sketcher.Constraint("Coincident", 3, 2, 0, 1),
    Sketcher.Constraint("Vertical", 0),
    Sketcher.Constraint("Horizontal", 1),
    Sketcher.Constraint("Vertical", 2),
    Sketcher.Constraint("Horizontal", 3),
    Sketcher.Constraint("DistanceX", 1, 1, 1, 2, Q("10 mm")),
    Sketcher.Constraint("DistanceY", 0, 1, 0, 2, Q("5.1 mm")),
    Sketcher.Constraint("DistanceY", -1, 1, 0, 2, Q("90 mm")),
    Sketcher.Constraint("DistanceX", 0, 2, -1, 1, Q("32.5 mm")),
])
sketch12.setExpression("Constraints[8]", "Params.sketch12_width")
sketch12.setExpression("Constraints[9]", "Params.sketch12_height")
pocket11 = body.newObject("PartDesign::Pocket", "Pocket010")
pocket11.Profile = sketch12
pocket11.Type = "UpToFirst"
pocket11.Reversed = True

# Sketch on XZ plane
sketch13 = body.newObject("Sketcher::SketchObject", "Sketch012")
sketch13.AttachmentSupport = (doc.getObject("XZ_Plane"), [""])
sketch13.MapMode = "FlatFace"
sketch13.AttachmentOffset = App.Placement(V(0, 0, -5), App.Rotation())
sketch13.addGeometry([
    Part.LineSegment(V(22, 85, 0), V(22, 90, 0)),
    Part.LineSegment(V(22, 90, 0), V(32, 90, 0)),
    Part.LineSegment(V(32, 90, 0), V(32, 85, 0)),
    Part.LineSegment(V(32, 85, 0), V(22, 85, 0)),
], False)
sketch13.addConstraint([
    Sketcher.Constraint("Coincident", 0, 2, 1, 1),
    Sketcher.Constraint("Coincident", 1, 2, 2, 1),
    Sketcher.Constraint("Coincident", 2, 2, 3, 1),
    Sketcher.Constraint("Coincident", 3, 2, 0, 1),
    Sketcher.Constraint("Vertical", 0),
    Sketcher.Constraint("Horizontal", 1),
    Sketcher.Constraint("Vertical", 2),
    Sketcher.Constraint("Horizontal", 3),
    Sketcher.Constraint("DistanceX", 1, 1, 1, 2, Q("10 mm")),
    Sketcher.Constraint("DistanceY", 0, 1, 0, 2, Q("5.1 mm")),
    Sketcher.Constraint("DistanceY", -1, 1, 0, 2, Q("90 mm")),
    Sketcher.Constraint("DistanceX", -1, 1, 0, 2, Q("22.5 mm")),
])
sketch13.setExpression("Constraints[8]", "Params.sketch13_width")
sketch13.setExpression("Constraints[9]", "Params.sketch13_height")
pocket12 = body.newObject("PartDesign::Pocket", "Pocket011")
pocket12.Profile = sketch13
pocket12.Type = "UpToFirst"
pocket12.Reversed = True

# Sketch on XZ plane
sketch14 = body.newObject("Sketcher::SketchObject", "Sketch013")
sketch14.AttachmentSupport = (doc.getObject("XZ_Plane"), [""])
sketch14.MapMode = "FlatFace"
sketch14.AttachmentOffset = App.Placement(V(0, 0, -5), App.Rotation())
sketch14.addGeometry([
    Part.LineSegment(V(-41, -1, 0), V(-41, 81, 0)),
    Part.LineSegment(V(-41, 81, 0), V(41, 81, 0)),
    Part.LineSegment(V(41, 81, 0), V(41, -1, 0)),
    Part.LineSegment(V(41, -1, 0), V(-41, -1, 0)),
], False)
sketch14.addConstraint([
    Sketcher.Constraint("Coincident", 0, 2, 1, 1),
    Sketcher.Constraint("Coincident", 1, 2, 2, 1),
    Sketcher.Constraint("Coincident", 2, 2, 3, 1),
    Sketcher.Constraint("Coincident", 3, 2, 0, 1),
    Sketcher.Constraint("Vertical", 0),
    Sketcher.Constraint("Horizontal", 1),
    Sketcher.Constraint("Vertical", 2),
    Sketcher.Constraint("Horizontal", 3),
    Sketcher.Constraint("Equal", 3, 0),
    Sketcher.Constraint("DistanceX", 1, 1, 1, 2, Q("82 mm")),
    Sketcher.Constraint("DistanceX", 0, 2, -1, 1, Q("41 mm")),
    Sketcher.Constraint("DistanceY", -1, 1, 0, 2, Q("81 mm")),
])
sketch14.setExpression("Constraints[9]", "Params.sketch14_width")
pocket13 = body.newObject("PartDesign::Pocket", "Pocket012")
pocket13.Profile = sketch14
pocket13.Type = "UpToFirst"
pocket13.Reversed = True

# Sketch on XZ plane
sketch15 = body.newObject("Sketcher::SketchObject", "Sketch014")
sketch15.AttachmentSupport = (doc.getObject("XZ_Plane"), [""])
sketch15.MapMode = "FlatFace"
sketch15.AttachmentOffset = App.Placement(V(0, 0, -5), App.Rotation())
sketch15.addGeometry([
    Part.Circle(V(-37, -64.5, 0), V(0, 0, 1), 1.6),  # 0
    Part.Circle(V(-13, -64.5, 0), V(0, 0, 1), 1.6),  # 1
    Part.Circle(V(-13, -40.5, 0), V(0, 0, 1), 1.6),  # 2
    Part.Circle(V(-37, -40.5, 0), V(0, 0, 1), 1.6),  # 3
    Part.LineSegment(V(-10, -62.5, 0), V(-10, -42.5, 0)),  # 4
    Part.LineSegment(V(-10, -42.5, 0), V(-3, -42.5, 0)),  # 5
    Part.LineSegment(V(-3, -42.5, 0), V(-3, -62.5, 0)),  # 6
    Part.LineSegment(V(-3, -62.5, 0), V(-10, -62.5, 0)),  # 7
], False)
sketch15.addConstraint([
    Sketcher.Constraint("Coincident", 4, 2, 5, 1),
    Sketcher.Constraint("Coincident", 5, 2, 6, 1),
    Sketcher.Constraint("Coincident", 6, 2, 7, 1),
    Sketcher.Constraint("Coincident", 7, 2, 4, 1),
    Sketcher.Constraint("Vertical", 4),
    Sketcher.Constraint("Horizontal", 5),
    Sketcher.Constraint("Vertical", 6),
    Sketcher.Constraint("Horizontal", 7),
    Sketcher.Constraint("Equal", 0, 1),
    Sketcher.Constraint("Equal", 1, 2),
    Sketcher.Constraint("Equal", 2, 3),
    Sketcher.Constraint("Horizontal", 0, 3, 1, 3),
    Sketcher.Constraint("Horizontal", 2, 3, 3, 3),
    Sketcher.Constraint("Vertical", 1, 3, 2, 3),
    Sketcher.Constraint("Vertical", 0, 3, 3, 3),
    Sketcher.Constraint("Diameter", 0, Q("3.1 mm")),
    Sketcher.Constraint("DistanceY", 4, 1, 4, 2, Q("20 mm")),
    Sketcher.Constraint("DistanceX", 0, 3, -1, 1, Q("37 mm")),
    Sketcher.Constraint("DistanceX", 1, 3, -1, 1, Q("13 mm")),
    Sketcher.Constraint("DistanceX", 4, 2, -1, 1, Q("10 mm")),
    Sketcher.Constraint("DistanceY", 1, 3, 2, 3, Q("24 mm")),
    Sketcher.Constraint("DistanceY", 4, 2, 2, 3, Q("2 mm")),
    Sketcher.Constraint("DistanceY", 0, 3, -1, 1, Q("64.5 mm")),
    Sketcher.Constraint("DistanceX", 5, 1, 5, 2, Q("7.015063 mm")),
])
sketch15.setExpression("Constraints[15]", "Params.sketch15_diameter")
sketch15.setExpression("Constraints[16]", "Params.sketch15_height")
pocket14 = body.newObject("PartDesign::Pocket", "Pocket013")
pocket14.Profile = sketch15
pocket14.Type = "ThroughAll"
pocket14.Reversed = True

# Sketch on XZ plane
sketch16 = body.newObject("Sketcher::SketchObject", "Sketch015")
sketch16.AttachmentSupport = (doc.getObject("XZ_Plane"), [""])
sketch16.MapMode = "FlatFace"
sketch16.AttachmentOffset = App.Placement(V(0, 0, -5), App.Rotation())
sketch16.addGeometry([
    Part.LineSegment(V(10, -67.5, 0), V(10, -37.5, 0)),  # 0
    Part.LineSegment(V(10, -37.5, 0), V(14, -37.5, 0)),  # 1
    Part.LineSegment(V(14, -37.5, 0), V(14, -67.5, 0)),  # 2
    Part.LineSegment(V(14, -67.5, 0), V(10, -67.5, 0)),  # 3
    Part.LineSegment(V(49.2, -67.5, 0), V(49.2, -37.5, 0)),  # 4
    Part.LineSegment(V(49.2, -37.5, 0), V(53.2, -37.5, 0)),  # 5
    Part.LineSegment(V(53.2, -37.5, 0), V(53.2, -67.5, 0)),  # 6
    Part.LineSegment(V(53.2, -67.5, 0), V(49.2, -67.5, 0)),  # 7
    Part.Circle(V(51.2, -72.6, 0), V(0, 0, 1), 1.3),  # 8
    Part.Circle(V(12, -72.6, 0), V(0, 0, 1), 1.3),  # 9
    Part.Circle(V(12, -32.4, 0), V(0, 0, 1), 1.3),  # 10
    Part.Circle(V(51.2, -32.4, 0), V(0, 0, 1), 1.3),  # 11
], False)
sketch16.addConstraint([
    Sketcher.Constraint("Coincident", 0, 2, 1, 1),
    Sketcher.Constraint("Coincident", 1, 2, 2, 1),
    Sketcher.Constraint("Coincident", 2, 2, 3, 1),
    Sketcher.Constraint("Coincident", 3, 2, 0, 1),
    Sketcher.Constraint("Coincident", 4, 2, 5, 1),
    Sketcher.Constraint("Coincident", 5, 2, 6, 1),
    Sketcher.Constraint("Coincident", 6, 2, 7, 1),
    Sketcher.Constraint("Coincident", 7, 2, 4, 1),
    Sketcher.Constraint("Vertical", 0),
    Sketcher.Constraint("Horizontal", 1),
    Sketcher.Constraint("Vertical", 2),
    Sketcher.Constraint("Horizontal", 3),
    Sketcher.Constraint("Vertical", 4),
    Sketcher.Constraint("Horizontal", 5),
    Sketcher.Constraint("Vertical", 6),
    Sketcher.Constraint("Horizontal", 7),
    Sketcher.Constraint("Equal", 8, 9),
    Sketcher.Constraint("Equal", 9, 10),
    Sketcher.Constraint("Equal", 10, 11),
    Sketcher.Constraint("Horizontal", 8, 3, 9, 3),
    Sketcher.Constraint("Horizontal", 10, 3, 11, 3),
    Sketcher.Constraint("Horizontal", 1, 2, 4, 2),
    Sketcher.Constraint("Horizontal", 3, 2, 6, 2),
    Sketcher.Constraint("Vertical", 9, 3, 10, 3),
    Sketcher.Constraint("Vertical", 8, 3, 11, 3),
    Sketcher.Constraint("Equal", 3, 5),
    Sketcher.Constraint("Diameter", 8, Q("2.6 mm")),
    Sketcher.Constraint("DistanceX", 1, 1, 1, 2, Q("4 mm")),
    Sketcher.Constraint("DistanceY", 0, 1, 0, 2, Q("30 mm")),
    Sketcher.Constraint("DistanceX", -1, 1, 9, 3, Q("12 mm")),
    Sketcher.Constraint("DistanceX", -1, 1, 0, 2, Q("10 mm")),
    Sketcher.Constraint("DistanceX", 4, 2, 11, 3, Q("2 mm")),
    Sketcher.Constraint("DistanceY", 0, 2, -1, 1, Q("37.5 mm")),
    Sketcher.Constraint("DistanceX", -1, 1, 8, 3, Q("51.25 mm")),
    Sketcher.Constraint("DistanceY", 9, 3, 10, 3, Q("40.25 mm")),
    Sketcher.Constraint("DistanceY", 8, 3, -1, 1, Q("72.625 mm")),
])
sketch16.setExpression("Constraints[26]", "Params.sketch16_diameter")
sketch16.setExpression("Constraints[27]", "Params.sketch16_width")
sketch16.setExpression("Constraints[28]", "Params.sketch16_height")
pocket15 = body.newObject("PartDesign::Pocket", "Pocket014")
pocket15.Profile = sketch16
pocket15.setExpression("Length", "Params.pocket15_length")
pocket15.Reversed = True

# Sketch on XZ plane
sketch17 = body.newObject("Sketcher::SketchObject", "Sketch016")
sketch17.AttachmentSupport = (doc.getObject("XZ_Plane"), [""])
sketch17.MapMode = "FlatFace"
sketch17.AttachmentOffset = App.Placement(V(0, 0, -5), App.Rotation())
sketch17.addGeometry([
    Part.Circle(V(-54.5, -7, 0), V(0, 0, 1), 1.6),  # 0
    Part.Circle(V(-54.5, 12, 0), V(0, 0, 1), 1.6),  # 1
    Part.Circle(V(-54.5, 68, 0), V(0, 0, 1), 1.6),  # 2
    Part.Circle(V(-54.5, 87, 0), V(0, 0, 1), 1.6),  # 3
    Part.Circle(V(54.5, 12, 0), V(0, 0, 1), 1.6),  # 4
    Part.Circle(V(54.5, -7, 0), V(0, 0, 1), 1.6),  # 5
    Part.Circle(V(54.5, 87, 0), V(0, 0, 1), 1.6),  # 6
    Part.Circle(V(54.5, 68, 0), V(0, 0, 1), 1.6),  # 7
], False)
sketch17.addConstraint([
    Sketcher.Constraint("Equal", 0, 1),
    Sketcher.Constraint("Equal", 1, 2),
    Sketcher.Constraint("Equal", 2, 3),
    Sketcher.Constraint("Equal", 3, 4),
    Sketcher.Constraint("Equal", 4, 5),
    Sketcher.Constraint("Equal", 5, 6),
    Sketcher.Constraint("Equal", 6, 7),
    Sketcher.Constraint("Symmetric", 1, 3, 4, 3, -2),
    Sketcher.Constraint("Symmetric", 0, 3, 5, 3, -2),
    Sketcher.Constraint("Symmetric", 3, 3, 6, 3, -2),
    Sketcher.Constraint("Symmetric", 2, 3, 7, 3, -2),
    Sketcher.Constraint("Vertical", 0, 3, 1, 3),
    Sketcher.Constraint("Vertical", 1, 3, 2, 3),
    Sketcher.Constraint("Vertical", 2, 3, 3, 3),
    Sketcher.Constraint("Diameter", 0, Q("3.1 mm")),
    Sketcher.Constraint("DistanceY", 0, 3, -1, 1, Q("7 mm")),
    Sketcher.Constraint("DistanceY", -1, 1, 1, 3, Q("12 mm")),
    Sketcher.Constraint("DistanceY", -1, 1, 2, 3, Q("68 mm")),
    Sketcher.Constraint("DistanceY", -1, 1, 3, 3, Q("87 mm")),
    Sketcher.Constraint("DistanceX", 1, 3, 4, 3, Q("109 mm")),
])
sketch17.setExpression("Constraints[14]", "Params.sketch17_diameter")
pocket16 = body.newObject("PartDesign::Pocket", "Pocket015")
pocket16.Profile = sketch17
pocket16.Type = "ThroughAll"
pocket16.Reversed = True
doc.recompute()

fillet = body.newObject("PartDesign::Fillet", "Fillet")
fillet.Base = (pocket16, edges_at(pocket16, [
    (-60, 2.5, 100),
    (-60, 2.5, -100),
    (60, 2.5, -100),
    (60, 2.5, 100),
]))
fillet.setExpression("Radius", "Params.fillet_radius")

doc.recompute()
